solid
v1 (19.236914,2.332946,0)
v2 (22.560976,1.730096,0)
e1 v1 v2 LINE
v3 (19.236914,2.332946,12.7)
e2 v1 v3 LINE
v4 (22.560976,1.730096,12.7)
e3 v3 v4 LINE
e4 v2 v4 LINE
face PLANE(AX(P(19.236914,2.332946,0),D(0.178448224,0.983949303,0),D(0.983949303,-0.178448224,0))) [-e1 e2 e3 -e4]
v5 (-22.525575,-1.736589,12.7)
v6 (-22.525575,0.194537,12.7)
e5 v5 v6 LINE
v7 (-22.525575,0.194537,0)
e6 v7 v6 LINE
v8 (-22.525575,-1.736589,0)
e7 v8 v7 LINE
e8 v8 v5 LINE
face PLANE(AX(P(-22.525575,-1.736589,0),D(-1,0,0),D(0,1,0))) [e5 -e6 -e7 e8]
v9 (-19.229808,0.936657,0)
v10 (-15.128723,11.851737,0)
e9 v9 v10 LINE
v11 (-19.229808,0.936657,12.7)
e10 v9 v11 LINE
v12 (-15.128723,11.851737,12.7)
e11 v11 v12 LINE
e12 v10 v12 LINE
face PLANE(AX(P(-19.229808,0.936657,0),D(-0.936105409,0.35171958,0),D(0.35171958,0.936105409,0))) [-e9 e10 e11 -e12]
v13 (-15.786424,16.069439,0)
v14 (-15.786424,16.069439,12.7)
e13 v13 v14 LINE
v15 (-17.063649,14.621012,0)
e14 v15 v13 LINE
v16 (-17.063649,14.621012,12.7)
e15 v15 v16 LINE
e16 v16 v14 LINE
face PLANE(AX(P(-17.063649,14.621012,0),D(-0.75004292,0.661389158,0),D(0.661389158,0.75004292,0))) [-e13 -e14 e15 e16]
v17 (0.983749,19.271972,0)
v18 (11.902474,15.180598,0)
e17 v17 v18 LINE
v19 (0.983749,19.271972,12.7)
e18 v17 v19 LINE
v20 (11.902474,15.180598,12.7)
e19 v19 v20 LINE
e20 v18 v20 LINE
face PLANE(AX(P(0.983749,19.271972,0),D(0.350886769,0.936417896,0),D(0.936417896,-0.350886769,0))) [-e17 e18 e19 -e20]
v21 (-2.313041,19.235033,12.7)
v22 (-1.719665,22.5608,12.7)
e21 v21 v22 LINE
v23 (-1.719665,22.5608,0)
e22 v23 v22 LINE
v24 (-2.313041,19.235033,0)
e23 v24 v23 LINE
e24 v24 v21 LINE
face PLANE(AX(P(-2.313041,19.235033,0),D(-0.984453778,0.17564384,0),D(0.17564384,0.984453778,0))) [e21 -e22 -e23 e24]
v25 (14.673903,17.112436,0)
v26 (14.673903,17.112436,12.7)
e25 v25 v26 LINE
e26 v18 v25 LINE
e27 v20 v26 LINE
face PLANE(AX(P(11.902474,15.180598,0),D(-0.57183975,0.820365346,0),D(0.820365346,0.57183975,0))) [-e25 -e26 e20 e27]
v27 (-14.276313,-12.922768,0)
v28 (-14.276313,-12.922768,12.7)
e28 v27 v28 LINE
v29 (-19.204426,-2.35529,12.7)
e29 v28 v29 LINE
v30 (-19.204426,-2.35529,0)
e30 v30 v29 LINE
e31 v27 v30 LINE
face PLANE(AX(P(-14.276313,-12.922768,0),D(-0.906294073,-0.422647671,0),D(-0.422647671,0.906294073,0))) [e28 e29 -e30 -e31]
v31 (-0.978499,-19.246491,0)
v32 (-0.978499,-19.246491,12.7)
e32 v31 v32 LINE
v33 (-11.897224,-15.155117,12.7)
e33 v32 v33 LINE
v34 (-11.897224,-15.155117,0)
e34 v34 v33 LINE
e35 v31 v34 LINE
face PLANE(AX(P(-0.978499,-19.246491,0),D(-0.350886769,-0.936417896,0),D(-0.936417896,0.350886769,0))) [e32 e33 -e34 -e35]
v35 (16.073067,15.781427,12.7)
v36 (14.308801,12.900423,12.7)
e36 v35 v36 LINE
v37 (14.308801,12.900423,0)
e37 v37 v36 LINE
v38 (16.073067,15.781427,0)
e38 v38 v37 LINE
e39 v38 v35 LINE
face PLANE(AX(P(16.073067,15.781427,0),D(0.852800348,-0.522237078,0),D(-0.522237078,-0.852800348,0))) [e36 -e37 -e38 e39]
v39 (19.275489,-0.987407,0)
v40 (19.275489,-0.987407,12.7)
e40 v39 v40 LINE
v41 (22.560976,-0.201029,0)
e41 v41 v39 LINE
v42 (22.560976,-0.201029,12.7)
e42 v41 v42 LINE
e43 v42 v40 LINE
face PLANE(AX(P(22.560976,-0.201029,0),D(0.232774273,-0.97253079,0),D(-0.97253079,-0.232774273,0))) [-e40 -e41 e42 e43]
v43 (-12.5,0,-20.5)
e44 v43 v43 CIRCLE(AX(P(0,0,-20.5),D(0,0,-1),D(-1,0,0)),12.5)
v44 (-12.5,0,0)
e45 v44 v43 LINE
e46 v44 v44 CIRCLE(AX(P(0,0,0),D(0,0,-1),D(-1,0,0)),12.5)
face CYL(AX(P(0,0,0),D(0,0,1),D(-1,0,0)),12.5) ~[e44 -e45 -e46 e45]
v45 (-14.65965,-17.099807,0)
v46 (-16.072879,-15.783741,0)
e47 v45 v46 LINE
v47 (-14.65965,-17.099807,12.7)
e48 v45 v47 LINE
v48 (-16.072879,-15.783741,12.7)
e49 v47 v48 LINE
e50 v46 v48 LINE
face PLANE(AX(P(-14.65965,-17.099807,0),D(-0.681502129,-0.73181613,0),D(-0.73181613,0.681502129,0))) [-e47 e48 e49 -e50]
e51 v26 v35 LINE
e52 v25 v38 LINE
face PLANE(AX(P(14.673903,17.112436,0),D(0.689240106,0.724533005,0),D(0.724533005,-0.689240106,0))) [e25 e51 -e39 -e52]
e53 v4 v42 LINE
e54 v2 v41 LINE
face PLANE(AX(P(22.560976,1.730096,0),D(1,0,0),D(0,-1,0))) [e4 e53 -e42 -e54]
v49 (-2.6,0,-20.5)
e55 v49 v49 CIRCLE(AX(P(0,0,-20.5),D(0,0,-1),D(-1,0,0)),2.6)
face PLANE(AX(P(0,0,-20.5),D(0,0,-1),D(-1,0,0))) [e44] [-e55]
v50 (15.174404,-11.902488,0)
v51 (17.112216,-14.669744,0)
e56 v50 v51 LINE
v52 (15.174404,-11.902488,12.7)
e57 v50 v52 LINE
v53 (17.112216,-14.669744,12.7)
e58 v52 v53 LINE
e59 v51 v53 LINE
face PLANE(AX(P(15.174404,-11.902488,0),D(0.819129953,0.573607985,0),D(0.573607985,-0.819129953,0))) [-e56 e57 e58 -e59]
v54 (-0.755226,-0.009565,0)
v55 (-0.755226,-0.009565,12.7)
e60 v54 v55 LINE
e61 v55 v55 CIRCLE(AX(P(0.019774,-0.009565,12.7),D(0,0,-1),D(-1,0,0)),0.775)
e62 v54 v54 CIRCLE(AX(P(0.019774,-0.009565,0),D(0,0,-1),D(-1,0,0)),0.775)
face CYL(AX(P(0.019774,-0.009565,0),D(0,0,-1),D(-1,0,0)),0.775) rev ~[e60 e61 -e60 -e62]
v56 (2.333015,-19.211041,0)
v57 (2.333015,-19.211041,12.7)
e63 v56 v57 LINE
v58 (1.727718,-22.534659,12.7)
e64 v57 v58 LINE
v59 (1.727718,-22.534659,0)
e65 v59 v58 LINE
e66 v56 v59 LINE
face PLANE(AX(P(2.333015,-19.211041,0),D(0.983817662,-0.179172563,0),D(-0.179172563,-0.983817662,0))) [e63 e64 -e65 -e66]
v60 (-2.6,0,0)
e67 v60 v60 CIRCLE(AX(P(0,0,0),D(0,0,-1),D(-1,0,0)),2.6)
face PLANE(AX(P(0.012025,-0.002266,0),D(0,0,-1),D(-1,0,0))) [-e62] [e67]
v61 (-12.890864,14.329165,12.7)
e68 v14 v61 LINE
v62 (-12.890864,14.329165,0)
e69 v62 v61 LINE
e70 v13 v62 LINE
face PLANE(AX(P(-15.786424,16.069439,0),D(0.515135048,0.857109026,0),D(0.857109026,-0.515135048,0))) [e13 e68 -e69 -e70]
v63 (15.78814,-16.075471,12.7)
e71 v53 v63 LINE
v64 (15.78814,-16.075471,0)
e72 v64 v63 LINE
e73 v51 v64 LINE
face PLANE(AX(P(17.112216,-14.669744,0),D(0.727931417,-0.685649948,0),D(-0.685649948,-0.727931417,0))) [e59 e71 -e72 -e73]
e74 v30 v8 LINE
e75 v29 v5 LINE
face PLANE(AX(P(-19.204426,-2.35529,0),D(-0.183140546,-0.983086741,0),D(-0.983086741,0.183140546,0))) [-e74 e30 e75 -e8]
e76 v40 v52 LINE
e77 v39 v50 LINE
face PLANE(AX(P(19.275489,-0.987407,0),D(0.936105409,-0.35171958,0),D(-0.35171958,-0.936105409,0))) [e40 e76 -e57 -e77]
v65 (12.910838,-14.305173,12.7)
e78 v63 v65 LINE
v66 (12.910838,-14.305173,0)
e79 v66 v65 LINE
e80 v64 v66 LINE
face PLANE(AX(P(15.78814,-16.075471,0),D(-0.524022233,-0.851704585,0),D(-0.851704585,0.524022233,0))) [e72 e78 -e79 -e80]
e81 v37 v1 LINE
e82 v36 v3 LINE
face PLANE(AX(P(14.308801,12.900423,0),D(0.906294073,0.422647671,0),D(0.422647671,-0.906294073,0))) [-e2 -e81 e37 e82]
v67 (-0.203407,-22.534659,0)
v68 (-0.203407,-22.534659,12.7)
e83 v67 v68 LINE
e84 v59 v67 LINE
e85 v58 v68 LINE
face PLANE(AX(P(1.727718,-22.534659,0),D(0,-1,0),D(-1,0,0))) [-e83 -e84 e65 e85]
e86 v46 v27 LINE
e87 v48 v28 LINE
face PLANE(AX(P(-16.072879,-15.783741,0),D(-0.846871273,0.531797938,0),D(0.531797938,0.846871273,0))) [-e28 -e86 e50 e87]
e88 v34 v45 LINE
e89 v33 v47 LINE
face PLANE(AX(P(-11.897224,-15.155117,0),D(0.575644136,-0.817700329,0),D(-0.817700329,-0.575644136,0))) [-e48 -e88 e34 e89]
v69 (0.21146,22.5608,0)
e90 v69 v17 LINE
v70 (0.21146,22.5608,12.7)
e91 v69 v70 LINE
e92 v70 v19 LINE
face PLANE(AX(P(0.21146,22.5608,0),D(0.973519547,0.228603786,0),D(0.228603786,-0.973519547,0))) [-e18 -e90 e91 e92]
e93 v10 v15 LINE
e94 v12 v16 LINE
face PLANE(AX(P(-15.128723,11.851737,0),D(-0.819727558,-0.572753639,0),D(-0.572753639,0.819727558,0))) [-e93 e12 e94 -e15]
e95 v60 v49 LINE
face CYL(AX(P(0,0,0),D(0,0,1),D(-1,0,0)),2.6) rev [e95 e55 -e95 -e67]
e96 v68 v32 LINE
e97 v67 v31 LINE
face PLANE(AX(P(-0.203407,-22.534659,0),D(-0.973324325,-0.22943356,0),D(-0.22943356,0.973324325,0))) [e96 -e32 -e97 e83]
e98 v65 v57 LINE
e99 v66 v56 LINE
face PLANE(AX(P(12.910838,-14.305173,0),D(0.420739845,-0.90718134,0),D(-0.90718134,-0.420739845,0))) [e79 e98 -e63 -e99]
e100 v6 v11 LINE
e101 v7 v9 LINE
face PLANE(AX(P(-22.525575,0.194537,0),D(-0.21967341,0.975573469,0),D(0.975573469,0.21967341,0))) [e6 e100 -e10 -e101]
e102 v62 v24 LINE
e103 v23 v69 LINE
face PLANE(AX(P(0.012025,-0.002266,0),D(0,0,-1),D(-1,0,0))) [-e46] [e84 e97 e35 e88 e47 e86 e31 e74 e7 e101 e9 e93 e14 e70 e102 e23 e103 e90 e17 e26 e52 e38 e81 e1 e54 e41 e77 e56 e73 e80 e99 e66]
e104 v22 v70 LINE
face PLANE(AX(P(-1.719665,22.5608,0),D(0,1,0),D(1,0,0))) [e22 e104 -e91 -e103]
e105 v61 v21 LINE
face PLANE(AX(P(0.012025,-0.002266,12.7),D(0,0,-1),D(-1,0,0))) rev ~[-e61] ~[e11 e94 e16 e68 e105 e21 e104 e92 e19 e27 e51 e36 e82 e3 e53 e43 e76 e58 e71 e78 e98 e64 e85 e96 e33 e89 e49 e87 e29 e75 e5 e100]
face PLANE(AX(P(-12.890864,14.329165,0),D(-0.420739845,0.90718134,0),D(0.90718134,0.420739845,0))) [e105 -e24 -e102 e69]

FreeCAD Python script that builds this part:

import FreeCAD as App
import Part
import Sketcher

doc = App.newDocument("Part")
params = doc.addObject("Spreadsheet::Sheet", "Params")
for row, (alias, value) in enumerate([
    ("pad1_length", "12.7 mm"),
    ("sketch2_diameter", "1.55 mm"),
    ("sketch3_diameter", "25 mm"),
    ("sketch3_diameter2", "5.2 mm"),
    ("pad2_length", "20.5 mm"),
], start=1):
    params.set(f"A{row}", alias)
    params.set(f"B{row}", "=" + value)
    params.setAlias(f"B{row}", alias)

body = doc.addObject("PartDesign::Body", "Body")

# Sketch on XY plane
sketch1 = doc.addObject("Sketcher::SketchObject", "Sketch")
body.addObject(sketch1)
sketch1.AttachmentSupport = (doc.XY_Plane, [""])
sketch1.MapMode = "FlatFace"
sketch1.addGeometry([
    Part.LineSegment(App.Vector(-22.525575, -1.736589, 0), App.Vector(-22.525575, 0.194537, 0)),  # 0
    Part.LineSegment(App.Vector(-22.525575, 0.194537, 0), App.Vector(-19.229808, 0.936657, 0)),  # 1
    Part.LineSegment(App.Vector(-19.229808, 0.936657, 0), App.Vector(-15.128723, 11.851737, 0)),  # 2
    Part.LineSegment(App.Vector(-15.128723, 11.851737, 0), App.Vector(-17.063649, 14.621012, 0)),  # 3
    Part.LineSegment(App.Vector(-17.063649, 14.621012, 0), App.Vector(-15.786424, 16.069439, 0)),  # 4
    Part.LineSegment(App.Vector(-15.786424, 16.069439, 0), App.Vector(-12.890864, 14.329165, 0)),  # 5
    Part.LineSegment(App.Vector(-12.890864, 14.329165, 0), App.Vector(-2.313041, 19.235033, 0)),  # 6
    Part.LineSegment(App.Vector(-2.313041, 19.235033, 0), App.Vector(-1.719665, 22.5608, 0)),  # 7
    Part.LineSegment(App.Vector(-1.719665, 22.5608, 0), App.Vector(0.21146, 22.5608, 0)),  # 8
    Part.LineSegment(App.Vector(0.21146, 22.5608, 0), App.Vector(0.983749, 19.271972, 0)),  # 9
    Part.LineSegment(App.Vector(0.983749, 19.271972, 0), App.Vector(11.902474, 15.180598, 0)),  # 10
    Part.LineSegment(App.Vector(11.902474, 15.180598, 0), App.Vector(14.673903, 17.112436, 0)),  # 11
    Part.LineSegment(App.Vector(14.673903, 17.112436, 0), App.Vector(16.073067, 15.781427, 0)),  # 12
    Part.LineSegment(App.Vector(16.073067, 15.781427, 0), App.Vector(14.308801, 12.900423, 0)),  # 13
    Part.LineSegment(App.Vector(14.308801, 12.900423, 0), App.Vector(19.236914, 2.332946, 0)),  # 14
    Part.LineSegment(App.Vector(19.236914, 2.332946, 0), App.Vector(22.560976, 1.730096, 0)),  # 15
    Part.LineSegment(App.Vector(22.560976, 1.730096, 0), App.Vector(22.560976, -0.201029, 0)),  # 16
    Part.LineSegment(App.Vector(22.560976, -0.201029, 0), App.Vector(19.275489, -0.987407, 0)),  # 17
    Part.LineSegment(App.Vector(19.275489, -0.987407, 0), App.Vector(15.174404, -11.902488, 0)),  # 18
    Part.LineSegment(App.Vector(15.174404, -11.902488, 0), App.Vector(17.112216, -14.669744, 0)),  # 19
    Part.LineSegment(App.Vector(17.112216, -14.669744, 0), App.Vector(15.78814, -16.075471, 0)),  # 20
    Part.LineSegment(App.Vector(15.78814, -16.075471, 0), App.Vector(12.910838, -14.305173, 0)),  # 21
    Part.LineSegment(App.Vector(12.910838, -14.305173, 0), App.Vector(2.333015, -19.211041, 0)),  # 22
    Part.LineSegment(App.Vector(2.333015, -19.211041, 0), App.Vector(1.727718, -22.534659, 0)),  # 23
    Part.LineSegment(App.Vector(1.727718, -22.534659, 0), App.Vector(-0.203407, -22.534659, 0)),  # 24
    Part.LineSegment(App.Vector(-0.203407, -22.534659, 0), App.Vector(-0.978499, -19.246491, 0)),  # 25
    Part.LineSegment(App.Vector(-0.978499, -19.246491, 0), App.Vector(-11.897224, -15.155117, 0)),  # 26
    Part.LineSegment(App.Vector(-11.897224, -15.155117, 0), App.Vector(-14.65965, -17.099807, 0)),  # 27
    Part.LineSegment(App.Vector(-14.65965, -17.099807, 0), App.Vector(-16.072879, -15.783741, 0)),  # 28
    Part.LineSegment(App.Vector(-16.072879, -15.783741, 0), App.Vector(-14.276313, -12.922768, 0)),  # 29
    Part.LineSegment(App.Vector(-14.276313, -12.922768, 0), App.Vector(-19.204426, -2.35529, 0)),  # 30
    Part.LineSegment(App.Vector(-19.204426, -2.35529, 0), App.Vector(-22.525575, -1.736589, 0)),  # 31
], False)
sketch1.addConstraint([
    Sketcher.Constraint("Coincident", 0, 2, 1, 1),
    Sketcher.Constraint("Coincident", 1, 2, 2, 1),
    Sketcher.Constraint("Coincident", 2, 2, 3, 1),
    Sketcher.Constraint("Coincident", 3, 2, 4, 1),
    Sketcher.Constraint("Coincident", 4, 2, 5, 1),
    Sketcher.Constraint("Coincident", 5, 2, 6, 1),
    Sketcher.Constraint("Coincident", 6, 2, 7, 1),
    Sketcher.Constraint("Coincident", 7, 2, 8, 1),
    Sketcher.Constraint("Coincident", 8, 2, 9, 1),
    Sketcher.Constraint("Coincident", 9, 2, 10, 1),
    Sketcher.Constraint("Coincident", 10, 2, 11, 1),
    Sketcher.Constraint("Coincident", 11, 2, 12, 1),
    Sketcher.Constraint("Coincident", 12, 2, 13, 1),
    Sketcher.Constraint("Coincident", 13, 2, 14, 1),
    Sketcher.Constraint("Coincident", 14, 2, 15, 1),
    Sketcher.Constraint("Coincident", 15, 2, 16, 1),
    Sketcher.Constraint("Coincident", 16, 2, 17, 1),
    Sketcher.Constraint("Coincident", 17, 2, 18, 1),
    Sketcher.Constraint("Coincident", 18, 2, 19, 1),
    Sketcher.Constraint("Coincident", 19, 2, 20, 1),
    Sketcher.Constraint("Coincident", 20, 2, 21, 1),
    Sketcher.Constraint("Coincident", 21, 2, 22, 1),
    Sketcher.Constraint("Coincident", 22, 2, 23, 1),
    Sketcher.Constraint("Coincident", 23, 2, 24, 1),
    Sketcher.Constraint("Coincident", 24, 2, 25, 1),
    Sketcher.Constraint("Coincident", 25, 2, 26, 1),
    Sketcher.Constraint("Coincident", 26, 2, 27, 1),
    Sketcher.Constraint("Coincident", 27, 2, 28, 1),
    Sketcher.Constraint("Coincident", 28, 2, 29, 1),
    Sketcher.Constraint("Coincident", 29, 2, 30, 1),
    Sketcher.Constraint("Coincident", 30, 2, 31, 1),
    Sketcher.Constraint("Coincident", 31, 2, 0, 1),
    Sketcher.Constraint("Vertical", 0),
    Sketcher.Constraint("Horizontal", 8),
    Sketcher.Constraint("Vertical", 16),
    Sketcher.Constraint("Horizontal", 24),
    Sketcher.Constraint("DistanceY", -1, 1, 7, 2, 22.5608),
    Sketcher.Constraint("DistanceX", -1, 1, 13, 2, 14.308801),
    Sketcher.Constraint("DistanceX", 25, 2, -1, 1, 0.978499),
    Sketcher.Constraint("DistanceY", 0, 2, 2, 2, 11.6572),
    Sketcher.Constraint("DistanceX", 4, 2, 2, 2, 0.6577),
    Sketcher.Constraint("DistanceY", 2, 2, 4, 2, 4.217701),
    Sketcher.Constraint("DistanceX", 5, 2, 7, 2, 11.171198),
    Sketcher.Constraint("DistanceX", 6, 2, 8, 2, 2.524501),
    Sketcher.Constraint("DistanceY", 10, 2, 8, 2, 7.380202),
    Sketcher.Constraint("DistanceY", 15, 2, 10, 2, 13.450501),
    Sketcher.Constraint("DistanceX", 21, 2, 20, 2, 2.877302),
    Sketcher.Constraint("DistanceX", 22, 2, 19, 2, 14.779201),
    Sketcher.Constraint("DistanceY", 30, 2, 31, 2, 0.618701),
    Sketcher.Constraint("DistanceX", 8, 1, 8, 2, 1.931126),
    Sketcher.Constraint("DistanceX", 24, 2, 24, 1, 1.931126),
    Sketcher.Constraint("DistanceY", 0, 1, 0, 2, 1.931126),
    Sketcher.Constraint("DistanceY", 16, 2, 16, 1, 1.931126),
    Sketcher.Constraint("DistanceX", 1, 2, -1, 1, 19.229808),
    Sketcher.Constraint("DistanceX", 3, 2, -1, 1, 17.063649),
    Sketcher.Constraint("DistanceY", -1, 1, 3, 2, 14.621012),
    Sketcher.Constraint("DistanceY", -1, 1, 4, 2, 16.069439),
    Sketcher.Constraint("DistanceX", 6, 2, -1, 1, 2.313041),
    Sketcher.Constraint("DistanceX", -1, 1, 9, 2, 0.983749),
    Sketcher.Constraint("DistanceY", -1, 1, 9, 2, 19.271972),
    Sketcher.Constraint("DistanceX", -1, 1, 17, 2, 19.275489),
    Sketcher.Constraint("DistanceY", 18, 2, -1, 1, 11.902488),
    Sketcher.Constraint("DistanceX", -1, 1, 20, 2, 15.78814),
    Sketcher.Constraint("DistanceY", 20, 2, -1, 1, 16.075471),
    Sketcher.Constraint("DistanceY", 22, 2, -1, 1, 19.211041),
    Sketcher.Constraint("DistanceX", -1, 1, 23, 2, 1.727718),
    Sketcher.Constraint("DistanceY", 23, 2, -1, 1, 22.534659),
    Sketcher.Constraint("DistanceY", 25, 2, -1, 1, 19.246491),
    Sketcher.Constraint("DistanceX", 27, 2, -1, 1, 14.65965),
    Sketcher.Constraint("DistanceX", 28, 2, -1, 1, 16.072879),
    Sketcher.Constraint("DistanceY", 28, 2, -1, 1, 15.783741),
    Sketcher.Constraint("DistanceY", 0, 2, 1, 2, 0.74212),
    Sketcher.Constraint("DistanceX", 0, 2, 2, 2, 7.396851),
    Sketcher.Constraint("DistanceX", 2, 2, 5, 2, 2.237859),
    Sketcher.Constraint("DistanceY", 1, 2, 5, 2, 13.392509),
    Sketcher.Constraint("DistanceY", 3, 2, 6, 2, 4.614021),
    Sketcher.Constraint("DistanceX", 7, 2, 10, 2, 13.622139),
    Sketcher.Constraint("DistanceX", 10, 2, 11, 2, 2.771429),
    Sketcher.Constraint("DistanceY", 10, 2, 11, 2, 1.931838),
    Sketcher.Constraint("DistanceY", 12, 2, 11, 2, 1.331009),
    Sketcher.Constraint("DistanceY", 13, 2, 9, 2, 6.371549),
    Sketcher.Constraint("DistanceY", 14, 2, 12, 2, 13.448481),
    Sketcher.Constraint("DistanceX", 10, 2, 14, 2, 7.33444),
    Sketcher.Constraint("DistanceX", 12, 2, 15, 2, 6.487909),
    Sketcher.Constraint("DistanceY", 17, 2, 16, 2, 0.786378),
    Sketcher.Constraint("DistanceX", 12, 2, 17, 2, 3.202422),
    Sketcher.Constraint("DistanceX", 18, 2, 14, 2, 4.06251),
    Sketcher.Constraint("DistanceX", 19, 2, 16, 2, 5.44876),
    Sketcher.Constraint("DistanceY", 19, 2, 14, 2, 17.002689),
    Sketcher.Constraint("DistanceY", 19, 2, 21, 2, 0.36457),
    Sketcher.Constraint("DistanceX", 26, 2, 22, 2, 14.230238),
    Sketcher.Constraint("DistanceY", 27, 2, 26, 2, 1.944691),
    Sketcher.Constraint("DistanceY", 24, 2, 27, 2, 5.434852),
    Sketcher.Constraint("DistanceX", 29, 2, 26, 2, 2.379089),
    Sketcher.Constraint("DistanceY", 26, 2, 29, 2, 2.232349),
    Sketcher.Constraint("DistanceX", 1, 2, 30, 2, 0.025382),
])
pad1 = doc.addObject("PartDesign::Pad", "Pad")
body.addObject(pad1)
pad1.Profile = sketch1
pad1.setExpression("Length", "Params.pad1_length")

# Sketch on XY plane
sketch2 = doc.addObject("Sketcher::SketchObject", "Sketch001")
body.addObject(sketch2)
sketch2.AttachmentSupport = (doc.XY_Plane, [""])
sketch2.MapMode = "FlatFace"
sketch2.addGeometry(Part.Circle(App.Vector(0.019774, -0.009565, 0), App.Vector(0, 0, 1), 0.775), False)
sketch2.addConstraint([
    Sketcher.Constraint("Diameter", 0, 1.55),
    Sketcher.Constraint("DistanceX", -1, 1, 0, 3, 0.019774),
    Sketcher.Constraint("DistanceY", 0, 3, -1, 1, 0.009565),
])
sketch2.setExpression("Constraints[0]", "Params.sketch2_diameter")
pocket1 = doc.addObject("PartDesign::Pocket", "Pocket")
body.addObject(pocket1)
pocket1.Profile = sketch2
pocket1.Type = "UpToFirst"
pocket1.Reversed = True

# Sketch on XY plane
sketch3 = doc.addObject("Sketcher::SketchObject", "Sketch002")
body.addObject(sketch3)
sketch3.AttachmentSupport = (doc.XY_Plane, [""])
sketch3.MapMode = "FlatFace"
sketch3.addGeometry([
    Part.Circle(App.Vector(0, 0, 0), App.Vector(0, 0, 1), 12.5),
    Part.Circle(App.Vector(0, 0, 0), App.Vector(0, 0, 1), 2.6),
], False)
sketch3.addConstraint([
    Sketcher.Constraint("Coincident", 0, 3, -1, 1),
    Sketcher.Constraint("Coincident", 1, 3, -1, 1),
    Sketcher.Constraint("Diameter", 0, 25.0),
    Sketcher.Constraint("Diameter", 1, 5.2),
])
sketch3.setExpression("Constraints[2]", "Params.sketch3_diameter")
sketch3.setExpression("Constraints[3]", "Params.sketch3_diameter2")
pad2 = doc.addObject("PartDesign::Pad", "Pad001")
body.addObject(pad2)
pad2.Profile = sketch3
pad2.setExpression("Length", "Params.pad2_length")
pad2.Reversed = True

doc.recompute()
